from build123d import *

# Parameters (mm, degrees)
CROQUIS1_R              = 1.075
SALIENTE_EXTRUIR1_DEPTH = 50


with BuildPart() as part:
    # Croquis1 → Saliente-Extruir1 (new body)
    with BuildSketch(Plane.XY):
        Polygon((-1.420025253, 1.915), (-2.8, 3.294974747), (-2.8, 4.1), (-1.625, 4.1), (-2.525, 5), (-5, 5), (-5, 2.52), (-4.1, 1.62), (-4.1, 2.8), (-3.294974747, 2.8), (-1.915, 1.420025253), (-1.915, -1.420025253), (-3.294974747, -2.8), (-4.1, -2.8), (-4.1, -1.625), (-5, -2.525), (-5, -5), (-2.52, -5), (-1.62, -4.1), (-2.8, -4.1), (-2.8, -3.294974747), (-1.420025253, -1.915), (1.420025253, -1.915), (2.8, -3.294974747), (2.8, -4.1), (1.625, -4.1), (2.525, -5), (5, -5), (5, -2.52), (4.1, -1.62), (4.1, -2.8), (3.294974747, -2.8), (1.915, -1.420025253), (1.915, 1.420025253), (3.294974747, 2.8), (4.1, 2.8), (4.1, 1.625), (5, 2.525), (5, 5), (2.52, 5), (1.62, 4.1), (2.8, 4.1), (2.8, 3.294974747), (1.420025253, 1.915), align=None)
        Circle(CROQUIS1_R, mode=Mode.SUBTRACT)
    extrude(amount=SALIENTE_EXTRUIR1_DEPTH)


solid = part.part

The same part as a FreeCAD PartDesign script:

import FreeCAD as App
import Part
import Sketcher

V = App.Vector
Q = App.Units.Quantity


def add_polygon(sketch, points):
    """Adds a closed chain of lines whose ends are joined by coincident constraints."""
    first, n = sketch.GeometryCount, len(points)
    for a, b in zip(points, points[1:] + points[:1]):
        sketch.addGeometry(Part.LineSegment(App.Vector(*a, 0), App.Vector(*b, 0)), False)
    for i in range(n):
        sketch.addConstraint(Sketcher.Constraint("Coincident", first + i, 2, first + (i + 1) % n, 1))

doc = App.newDocument("Part")
body = doc.addObject("PartDesign::Body", "Body")

# Sketch on XY plane
sketch1 = doc.addObject("Sketcher::SketchObject", "Sketch")
body.addObject(sketch1)
sketch1.AttachmentSupport = (doc.XY_Plane, [""])
sketch1.MapMode = "FlatFace"
add_polygon(sketch1, [(-1.4, 1.9), (-2.8, 3.3), (-2.8, 4.1), (-1.6, 4.1), (-2.5, 5), (-5, 5), (-5, 2.5), (-4.1, 1.6), (-4.1, 2.8), (-3.3, 2.8), (-1.9, 1.4), (-1.9, -1.4), (-3.3, -2.8), (-4.1, -2.8), (-4.1, -1.6), (-5, -2.5), (-5, -5), (-2.5, -5), (-1.6, -4.1), (-2.8, -4.1), (-2.8, -3.3), (-1.4, -1.9), (1.4, -1.9), (2.8, -3.3), (2.8, -4.1), (1.6, -4.1), (2.5, -5), (5, -5), (5, -2.5), (4.1, -1.6), (4.1, -2.8), (3.3, -2.8), (1.9, -1.4), (1.9, 1.4), (3.3, 2.8), (4.1, 2.8), (4.1, 1.6), (5, 2.5), (5, 5), (2.5, 5), (1.6, 4.1), (2.8, 4.1), (2.8, 3.3), (1.4, 1.9)])  # lines 0-43
sketch1.addGeometry(Part.Circle(V(0, 0, 0), V(0, 0, 1), 1.1), False)  # 44
sketch1.addConstraint([
    Sketcher.Constraint("Vertical", 1),
    Sketcher.Constraint("Horizontal", 2),
    Sketcher.Constraint("Horizontal", 4),
    Sketcher.Constraint("Vertical", 5),
    Sketcher.Constraint("Vertical", 7),
    Sketcher.Constraint("Horizontal", 8),
    Sketcher.Constraint("Vertical", 10),
    Sketcher.Constraint("Horizontal", 12),
    Sketcher.Constraint("Vertical", 13),
    Sketcher.Constraint("Vertical", 15),
    Sketcher.Constraint("Horizontal", 16),
    Sketcher.Constraint("Horizontal", 18),
    Sketcher.Constraint("Vertical", 19),
    Sketcher.Constraint("Horizontal", 21),
    Sketcher.Constraint("Vertical", 23),
    Sketcher.Constraint("Horizontal", 24),
    Sketcher.Constraint("Horizontal", 26),
    Sketcher.Constraint("Vertical", 27),
    Sketcher.Constraint("Vertical", 29),
    Sketcher.Constraint("Horizontal", 30),
    Sketcher.Constraint("Vertical", 32),
    Sketcher.Constraint("Horizontal", 34),
    Sketcher.Constraint("Vertical", 35),
    Sketcher.Constraint("Vertical", 37),
    Sketcher.Constraint("Horizontal", 38),
    Sketcher.Constraint("Horizontal", 40),
    Sketcher.Constraint("Vertical", 41),
    Sketcher.Constraint("Horizontal", 43),
    Sketcher.Constraint("Coincident", 44, 3, -1, 1),
    Sketcher.Constraint("Symmetric", 0, 2, 22, 2, -1, 1),
    Sketcher.Constraint("Symmetric", 2, 2, 24, 2, -1, 1),
    Sketcher.Constraint("Symmetric", 3, 2, 25, 2, -1, 1),
    Sketcher.Constraint("Symmetric", 5, 2, 27, 2, -1, 1),
    Sketcher.Constraint("Symmetric", 6, 2, 28, 2, -1, 1),
    Sketcher.Constraint("Symmetric", 8, 2, 30, 2, -1, 1),
    Sketcher.Constraint("Symmetric", 9, 2, 31, 2, -1, 1),
    Sketcher.Constraint("Symmetric", 11, 2, 33, 2, -1, 1),
    Sketcher.Constraint("Symmetric", 13, 2, 35, 2, -1, 1),
    Sketcher.Constraint("Symmetric", 14, 2, 36, 2, -1, 1),
    Sketcher.Constraint("Symmetric", 16, 2, 38, 2, -1, 1),
    Sketcher.Constraint("Symmetric", 17, 2, 39, 2, -1, 1),
    Sketcher.Constraint("Symmetric", 19, 2, 41, 2, -1, 1),
    Sketcher.Constraint("Symmetric", 20, 2, 42, 2, -1, 1),
    Sketcher.Constraint("Symmetric", 19, 2, 22, 2, -2),
    Sketcher.Constraint("Symmetric", 15, 2, 26, 2, -2),
    Sketcher.Constraint("Symmetric", 12, 2, 29, 2, -2),
    Sketcher.Constraint("Parallel", 0, 3),
    Sketcher.Constraint("Parallel", 3, 6),
    Sketcher.Constraint("Parallel", 6, 9),
    Sketcher.Constraint("Perpendicular", 9, 11),
    Sketcher.Constraint("Parallel", 11, 14),
    Sketcher.Constraint("Parallel", 14, 17),
    Sketcher.Constraint("Parallel", 17, 20),
    Sketcher.Constraint("Perpendicular", 20, 22),
    Sketcher.Constraint("Perpendicular", 31, 33),
    Sketcher.Constraint("Horizontal", 18, 2, 23, 2),
    Sketcher.Constraint("Horizontal", 10, 2, 31, 2),
    Sketcher.Constraint("Vertical", 8, 2, 11, 2),
    Sketcher.Constraint("Equal", 34, 1),
    Sketcher.Constraint("Equal", 38, 5),
    Sketcher.Constraint("Equal", 40, 7),
    Sketcher.Constraint("Equal", 43, 10),
    Sketcher.Constraint("Equal", 24, 13),
    Sketcher.Constraint("Equal", 3, 6),
    Sketcher.Constraint("Equal", 0, 9),
    Sketcher.Constraint("Diameter", 44, Q("2.15 mm")),
    Sketcher.Constraint("DistanceY", -1, 1, 3, 2, Q("5 mm")),
    Sketcher.Constraint("DistanceX", 16, 1, 16, 2, Q("2.48 mm")),
    Sketcher.Constraint("DistanceX", 18, 2, 18, 1, Q("1.18 mm")),
    Sketcher.Constraint("DistanceX", 0, 2, -1, 1, Q("2.8 mm")),
    Sketcher.Constraint("DistanceX", 2, 1, 2, 2, Q("1.175 mm")),
    Sketcher.Constraint("DistanceX", 9, 2, 32, 2, Q("3.83 mm")),
    Sketcher.Constraint("DistanceX", 21, 1, 21, 2, Q("2.840051 mm")),
])
pad1 = doc.addObject("PartDesign::Pad", "Pad")
body.addObject(pad1)
pad1.Profile = sketch1
pad1.Length = 50

doc.recompute()
